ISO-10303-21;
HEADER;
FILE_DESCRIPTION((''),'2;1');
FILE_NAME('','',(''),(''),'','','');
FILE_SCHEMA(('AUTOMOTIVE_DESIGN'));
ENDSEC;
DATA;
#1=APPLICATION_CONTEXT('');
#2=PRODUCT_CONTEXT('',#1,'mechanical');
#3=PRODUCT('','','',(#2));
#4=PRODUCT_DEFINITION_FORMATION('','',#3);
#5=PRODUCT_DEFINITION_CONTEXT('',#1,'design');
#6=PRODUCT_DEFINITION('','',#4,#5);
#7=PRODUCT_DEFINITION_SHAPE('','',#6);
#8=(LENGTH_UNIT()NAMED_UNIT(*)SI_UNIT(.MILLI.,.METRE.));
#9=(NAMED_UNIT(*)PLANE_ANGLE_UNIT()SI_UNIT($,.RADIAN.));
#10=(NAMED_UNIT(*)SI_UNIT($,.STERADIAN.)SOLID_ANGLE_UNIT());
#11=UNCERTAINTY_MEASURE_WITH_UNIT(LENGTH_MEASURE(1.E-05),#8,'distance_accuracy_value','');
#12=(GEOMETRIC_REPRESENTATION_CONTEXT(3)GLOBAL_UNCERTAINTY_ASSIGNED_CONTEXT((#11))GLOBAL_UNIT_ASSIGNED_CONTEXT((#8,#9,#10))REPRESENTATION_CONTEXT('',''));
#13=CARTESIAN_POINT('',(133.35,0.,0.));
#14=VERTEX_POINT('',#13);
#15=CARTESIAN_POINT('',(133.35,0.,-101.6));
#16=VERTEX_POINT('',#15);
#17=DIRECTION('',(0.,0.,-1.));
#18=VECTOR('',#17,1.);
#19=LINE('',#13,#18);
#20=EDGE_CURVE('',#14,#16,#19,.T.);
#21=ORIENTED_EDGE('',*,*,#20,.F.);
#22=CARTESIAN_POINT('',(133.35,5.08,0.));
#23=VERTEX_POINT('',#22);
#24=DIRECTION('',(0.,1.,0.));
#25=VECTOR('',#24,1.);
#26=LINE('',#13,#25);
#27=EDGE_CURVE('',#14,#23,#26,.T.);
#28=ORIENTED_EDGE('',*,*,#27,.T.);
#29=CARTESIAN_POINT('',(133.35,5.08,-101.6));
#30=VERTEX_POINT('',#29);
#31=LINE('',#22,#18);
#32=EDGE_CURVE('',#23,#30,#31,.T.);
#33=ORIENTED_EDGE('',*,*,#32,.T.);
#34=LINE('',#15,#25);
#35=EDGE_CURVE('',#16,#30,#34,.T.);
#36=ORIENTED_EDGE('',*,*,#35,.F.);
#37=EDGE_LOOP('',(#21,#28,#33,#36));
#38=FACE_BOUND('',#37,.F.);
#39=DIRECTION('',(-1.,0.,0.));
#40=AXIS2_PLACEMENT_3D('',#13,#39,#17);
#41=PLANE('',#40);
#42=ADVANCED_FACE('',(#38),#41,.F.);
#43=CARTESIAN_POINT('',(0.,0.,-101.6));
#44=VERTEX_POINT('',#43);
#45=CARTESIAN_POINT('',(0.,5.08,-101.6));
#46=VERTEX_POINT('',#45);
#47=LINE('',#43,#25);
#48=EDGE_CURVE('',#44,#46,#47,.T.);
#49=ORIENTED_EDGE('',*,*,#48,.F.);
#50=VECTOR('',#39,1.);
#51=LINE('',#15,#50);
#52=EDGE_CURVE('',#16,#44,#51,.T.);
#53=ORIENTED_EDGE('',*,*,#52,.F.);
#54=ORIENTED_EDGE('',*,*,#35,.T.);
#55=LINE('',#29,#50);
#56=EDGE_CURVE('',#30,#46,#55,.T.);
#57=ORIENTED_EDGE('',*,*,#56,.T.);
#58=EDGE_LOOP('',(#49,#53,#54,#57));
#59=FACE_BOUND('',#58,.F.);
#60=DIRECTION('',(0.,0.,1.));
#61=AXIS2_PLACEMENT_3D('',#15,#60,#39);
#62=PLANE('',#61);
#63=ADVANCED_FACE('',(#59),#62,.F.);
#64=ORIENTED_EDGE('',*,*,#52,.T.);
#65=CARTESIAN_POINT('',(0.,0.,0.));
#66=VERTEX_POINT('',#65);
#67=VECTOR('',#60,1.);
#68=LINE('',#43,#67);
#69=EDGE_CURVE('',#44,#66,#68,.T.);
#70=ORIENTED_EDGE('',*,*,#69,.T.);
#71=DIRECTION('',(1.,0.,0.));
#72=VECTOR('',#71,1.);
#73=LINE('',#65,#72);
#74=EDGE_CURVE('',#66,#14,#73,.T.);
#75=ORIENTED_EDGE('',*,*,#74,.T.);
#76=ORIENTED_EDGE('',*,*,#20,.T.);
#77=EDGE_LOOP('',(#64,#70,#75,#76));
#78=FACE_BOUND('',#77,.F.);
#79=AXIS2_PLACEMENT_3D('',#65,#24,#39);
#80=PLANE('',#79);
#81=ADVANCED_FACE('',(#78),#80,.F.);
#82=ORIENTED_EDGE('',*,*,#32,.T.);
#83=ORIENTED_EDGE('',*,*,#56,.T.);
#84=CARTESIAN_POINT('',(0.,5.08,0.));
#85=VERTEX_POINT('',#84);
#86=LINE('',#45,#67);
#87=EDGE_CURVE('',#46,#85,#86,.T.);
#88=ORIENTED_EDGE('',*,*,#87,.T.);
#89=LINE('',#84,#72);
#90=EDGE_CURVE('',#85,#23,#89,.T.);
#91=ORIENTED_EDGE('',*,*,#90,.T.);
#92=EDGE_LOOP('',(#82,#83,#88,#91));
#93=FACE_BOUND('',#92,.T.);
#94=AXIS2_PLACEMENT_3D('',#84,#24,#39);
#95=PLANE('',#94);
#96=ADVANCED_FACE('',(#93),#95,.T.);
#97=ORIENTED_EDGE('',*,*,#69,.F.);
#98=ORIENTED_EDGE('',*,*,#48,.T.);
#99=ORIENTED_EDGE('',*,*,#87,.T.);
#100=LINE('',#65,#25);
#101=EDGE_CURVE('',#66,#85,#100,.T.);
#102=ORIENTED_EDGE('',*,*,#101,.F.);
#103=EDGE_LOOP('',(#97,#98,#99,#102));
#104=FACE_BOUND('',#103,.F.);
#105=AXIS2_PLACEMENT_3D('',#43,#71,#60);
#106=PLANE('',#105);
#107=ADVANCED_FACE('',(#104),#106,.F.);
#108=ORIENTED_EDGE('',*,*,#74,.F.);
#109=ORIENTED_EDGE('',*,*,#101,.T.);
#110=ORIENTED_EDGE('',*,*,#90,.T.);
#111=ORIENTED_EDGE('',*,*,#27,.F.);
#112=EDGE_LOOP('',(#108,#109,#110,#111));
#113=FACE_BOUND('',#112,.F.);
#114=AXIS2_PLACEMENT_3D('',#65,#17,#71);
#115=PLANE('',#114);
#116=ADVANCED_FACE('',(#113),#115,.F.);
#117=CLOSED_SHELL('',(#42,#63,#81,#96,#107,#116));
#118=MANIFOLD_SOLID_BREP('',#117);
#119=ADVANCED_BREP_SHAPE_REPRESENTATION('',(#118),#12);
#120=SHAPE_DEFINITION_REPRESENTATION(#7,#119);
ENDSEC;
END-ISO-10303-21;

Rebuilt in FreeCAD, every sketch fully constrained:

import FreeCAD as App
import Part
import Sketcher

V = App.Vector
Q = App.Units.Quantity


def add_polygon(sketch, points):
    """Adds a closed chain of lines whose ends are joined by coincident constraints."""
    first, n = sketch.GeometryCount, len(points)
    for a, b in zip(points, points[1:] + points[:1]):
        sketch.addGeometry(Part.LineSegment(App.Vector(*a, 0), App.Vector(*b, 0)), False)
    for i in range(n):
        sketch.addConstraint(Sketcher.Constraint("Coincident", first + i, 2, first + (i + 1) % n, 1))

doc = App.newDocument("Part")
body = doc.addObject("PartDesign::Body", "Body")

# Sketch on XZ plane
sketch1 = body.newObject("Sketcher::SketchObject", "Sketch")
sketch1.AttachmentSupport = (doc.getObject("XZ_Plane"), [""])
sketch1.MapMode = "FlatFace"
add_polygon(sketch1, [(0, -102), (0, 0), (133, 0), (133, -102)])  # lines 0-3
sketch1.addConstraint([
    Sketcher.Constraint("Vertical", 0),
    Sketcher.Constraint("Horizontal", 1),
    Sketcher.Constraint("Vertical", 2),
    Sketcher.Constraint("Horizontal", 3),
    Sketcher.Constraint("Coincident", 0, 2, -1, 1),
    Sketcher.Constraint("DistanceY", 0, 1, 0, 2, Q("4 in")),
    Sketcher.Constraint("DistanceX", 1, 1, 1, 2, Q("5.25 in")),
])
pad1 = body.newObject("PartDesign::Pad", "Pad")
pad1.Profile = sketch1
pad1.Length = Q("0.2 in")
pad1.Reversed = True

doc.recompute()
